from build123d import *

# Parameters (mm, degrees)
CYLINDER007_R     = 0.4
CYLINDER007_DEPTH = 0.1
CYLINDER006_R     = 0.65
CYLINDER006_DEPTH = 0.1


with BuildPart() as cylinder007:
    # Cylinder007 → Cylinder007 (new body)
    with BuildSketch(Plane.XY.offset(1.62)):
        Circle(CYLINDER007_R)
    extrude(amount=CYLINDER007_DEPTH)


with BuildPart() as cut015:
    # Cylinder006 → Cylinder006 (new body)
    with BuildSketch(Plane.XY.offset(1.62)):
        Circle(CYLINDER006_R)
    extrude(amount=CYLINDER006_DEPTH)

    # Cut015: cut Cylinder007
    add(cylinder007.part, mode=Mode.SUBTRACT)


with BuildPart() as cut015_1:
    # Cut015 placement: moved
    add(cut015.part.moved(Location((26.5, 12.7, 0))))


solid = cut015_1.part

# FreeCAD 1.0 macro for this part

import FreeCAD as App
import Part
import Sketcher
Q = App.Units.Quantity

doc = App.newDocument("Part")
body = doc.addObject("PartDesign::Body", "Body")

# Sketch on XY plane
sketch1 = body.newObject("Sketcher::SketchObject", "Sketch")
sketch1.AttachmentSupport = (doc.getObject("XY_Plane"), [""])
sketch1.MapMode = "FlatFace"
sketch1.AttachmentOffset = App.Placement(App.Vector(0, 0, 1.62), App.Rotation())
sketch1.addGeometry(Part.Circle(App.Vector(0, 0, 0), App.Vector(0, 0, 1), 0.4), False)
sketch1.addConstraint(Sketcher.Constraint("Coincident", 0, 3, -1, 1))
sketch1.addConstraint(Sketcher.Constraint("Diameter", 0, Q("0.8 mm")))
pad1 = body.newObject("PartDesign::Pad", "Pad")
pad1.Profile = sketch1
pad1.Length = 0.1
body2 = doc.addObject("PartDesign::Body", "Body001")

# Sketch on XY plane
sketch2 = body2.newObject("Sketcher::SketchObject", "Sketch001")
sketch2.AttachmentSupport = (doc.getObject("XY_Plane001"), [""])
sketch2.MapMode = "FlatFace"
sketch2.AttachmentOffset = App.Placement(App.Vector(0, 0, 1.62), App.Rotation())
sketch2.addGeometry(Part.Circle(App.Vector(0, 0, 0), App.Vector(0, 0, 1), 0.7), False)
sketch2.addConstraint(Sketcher.Constraint("Coincident", 0, 3, -1, 1))
sketch2.addConstraint(Sketcher.Constraint("Diameter", 0, Q("1.3 mm")))
pad2 = body2.newObject("PartDesign::Pad", "Pad001")
pad2.Profile = sketch2
pad2.Length = 0.1
doc.recompute()

boolean = body2.newObject("PartDesign::Boolean", "Boolean")
boolean.Type = "Cut"
boolean.addObjects([body])
body3 = doc.addObject("PartDesign::Body", "Body002")
doc.recompute()

body2.Placement = App.Placement(App.Vector(26.5, 12.7, 0), App.Rotation(App.Vector(0, 0, 1), 0))
boolean2 = body3.newObject("PartDesign::Boolean", "Boolean001")
boolean2.Type = "Fuse"
boolean2.addObjects([body2])

doc.recompute()
